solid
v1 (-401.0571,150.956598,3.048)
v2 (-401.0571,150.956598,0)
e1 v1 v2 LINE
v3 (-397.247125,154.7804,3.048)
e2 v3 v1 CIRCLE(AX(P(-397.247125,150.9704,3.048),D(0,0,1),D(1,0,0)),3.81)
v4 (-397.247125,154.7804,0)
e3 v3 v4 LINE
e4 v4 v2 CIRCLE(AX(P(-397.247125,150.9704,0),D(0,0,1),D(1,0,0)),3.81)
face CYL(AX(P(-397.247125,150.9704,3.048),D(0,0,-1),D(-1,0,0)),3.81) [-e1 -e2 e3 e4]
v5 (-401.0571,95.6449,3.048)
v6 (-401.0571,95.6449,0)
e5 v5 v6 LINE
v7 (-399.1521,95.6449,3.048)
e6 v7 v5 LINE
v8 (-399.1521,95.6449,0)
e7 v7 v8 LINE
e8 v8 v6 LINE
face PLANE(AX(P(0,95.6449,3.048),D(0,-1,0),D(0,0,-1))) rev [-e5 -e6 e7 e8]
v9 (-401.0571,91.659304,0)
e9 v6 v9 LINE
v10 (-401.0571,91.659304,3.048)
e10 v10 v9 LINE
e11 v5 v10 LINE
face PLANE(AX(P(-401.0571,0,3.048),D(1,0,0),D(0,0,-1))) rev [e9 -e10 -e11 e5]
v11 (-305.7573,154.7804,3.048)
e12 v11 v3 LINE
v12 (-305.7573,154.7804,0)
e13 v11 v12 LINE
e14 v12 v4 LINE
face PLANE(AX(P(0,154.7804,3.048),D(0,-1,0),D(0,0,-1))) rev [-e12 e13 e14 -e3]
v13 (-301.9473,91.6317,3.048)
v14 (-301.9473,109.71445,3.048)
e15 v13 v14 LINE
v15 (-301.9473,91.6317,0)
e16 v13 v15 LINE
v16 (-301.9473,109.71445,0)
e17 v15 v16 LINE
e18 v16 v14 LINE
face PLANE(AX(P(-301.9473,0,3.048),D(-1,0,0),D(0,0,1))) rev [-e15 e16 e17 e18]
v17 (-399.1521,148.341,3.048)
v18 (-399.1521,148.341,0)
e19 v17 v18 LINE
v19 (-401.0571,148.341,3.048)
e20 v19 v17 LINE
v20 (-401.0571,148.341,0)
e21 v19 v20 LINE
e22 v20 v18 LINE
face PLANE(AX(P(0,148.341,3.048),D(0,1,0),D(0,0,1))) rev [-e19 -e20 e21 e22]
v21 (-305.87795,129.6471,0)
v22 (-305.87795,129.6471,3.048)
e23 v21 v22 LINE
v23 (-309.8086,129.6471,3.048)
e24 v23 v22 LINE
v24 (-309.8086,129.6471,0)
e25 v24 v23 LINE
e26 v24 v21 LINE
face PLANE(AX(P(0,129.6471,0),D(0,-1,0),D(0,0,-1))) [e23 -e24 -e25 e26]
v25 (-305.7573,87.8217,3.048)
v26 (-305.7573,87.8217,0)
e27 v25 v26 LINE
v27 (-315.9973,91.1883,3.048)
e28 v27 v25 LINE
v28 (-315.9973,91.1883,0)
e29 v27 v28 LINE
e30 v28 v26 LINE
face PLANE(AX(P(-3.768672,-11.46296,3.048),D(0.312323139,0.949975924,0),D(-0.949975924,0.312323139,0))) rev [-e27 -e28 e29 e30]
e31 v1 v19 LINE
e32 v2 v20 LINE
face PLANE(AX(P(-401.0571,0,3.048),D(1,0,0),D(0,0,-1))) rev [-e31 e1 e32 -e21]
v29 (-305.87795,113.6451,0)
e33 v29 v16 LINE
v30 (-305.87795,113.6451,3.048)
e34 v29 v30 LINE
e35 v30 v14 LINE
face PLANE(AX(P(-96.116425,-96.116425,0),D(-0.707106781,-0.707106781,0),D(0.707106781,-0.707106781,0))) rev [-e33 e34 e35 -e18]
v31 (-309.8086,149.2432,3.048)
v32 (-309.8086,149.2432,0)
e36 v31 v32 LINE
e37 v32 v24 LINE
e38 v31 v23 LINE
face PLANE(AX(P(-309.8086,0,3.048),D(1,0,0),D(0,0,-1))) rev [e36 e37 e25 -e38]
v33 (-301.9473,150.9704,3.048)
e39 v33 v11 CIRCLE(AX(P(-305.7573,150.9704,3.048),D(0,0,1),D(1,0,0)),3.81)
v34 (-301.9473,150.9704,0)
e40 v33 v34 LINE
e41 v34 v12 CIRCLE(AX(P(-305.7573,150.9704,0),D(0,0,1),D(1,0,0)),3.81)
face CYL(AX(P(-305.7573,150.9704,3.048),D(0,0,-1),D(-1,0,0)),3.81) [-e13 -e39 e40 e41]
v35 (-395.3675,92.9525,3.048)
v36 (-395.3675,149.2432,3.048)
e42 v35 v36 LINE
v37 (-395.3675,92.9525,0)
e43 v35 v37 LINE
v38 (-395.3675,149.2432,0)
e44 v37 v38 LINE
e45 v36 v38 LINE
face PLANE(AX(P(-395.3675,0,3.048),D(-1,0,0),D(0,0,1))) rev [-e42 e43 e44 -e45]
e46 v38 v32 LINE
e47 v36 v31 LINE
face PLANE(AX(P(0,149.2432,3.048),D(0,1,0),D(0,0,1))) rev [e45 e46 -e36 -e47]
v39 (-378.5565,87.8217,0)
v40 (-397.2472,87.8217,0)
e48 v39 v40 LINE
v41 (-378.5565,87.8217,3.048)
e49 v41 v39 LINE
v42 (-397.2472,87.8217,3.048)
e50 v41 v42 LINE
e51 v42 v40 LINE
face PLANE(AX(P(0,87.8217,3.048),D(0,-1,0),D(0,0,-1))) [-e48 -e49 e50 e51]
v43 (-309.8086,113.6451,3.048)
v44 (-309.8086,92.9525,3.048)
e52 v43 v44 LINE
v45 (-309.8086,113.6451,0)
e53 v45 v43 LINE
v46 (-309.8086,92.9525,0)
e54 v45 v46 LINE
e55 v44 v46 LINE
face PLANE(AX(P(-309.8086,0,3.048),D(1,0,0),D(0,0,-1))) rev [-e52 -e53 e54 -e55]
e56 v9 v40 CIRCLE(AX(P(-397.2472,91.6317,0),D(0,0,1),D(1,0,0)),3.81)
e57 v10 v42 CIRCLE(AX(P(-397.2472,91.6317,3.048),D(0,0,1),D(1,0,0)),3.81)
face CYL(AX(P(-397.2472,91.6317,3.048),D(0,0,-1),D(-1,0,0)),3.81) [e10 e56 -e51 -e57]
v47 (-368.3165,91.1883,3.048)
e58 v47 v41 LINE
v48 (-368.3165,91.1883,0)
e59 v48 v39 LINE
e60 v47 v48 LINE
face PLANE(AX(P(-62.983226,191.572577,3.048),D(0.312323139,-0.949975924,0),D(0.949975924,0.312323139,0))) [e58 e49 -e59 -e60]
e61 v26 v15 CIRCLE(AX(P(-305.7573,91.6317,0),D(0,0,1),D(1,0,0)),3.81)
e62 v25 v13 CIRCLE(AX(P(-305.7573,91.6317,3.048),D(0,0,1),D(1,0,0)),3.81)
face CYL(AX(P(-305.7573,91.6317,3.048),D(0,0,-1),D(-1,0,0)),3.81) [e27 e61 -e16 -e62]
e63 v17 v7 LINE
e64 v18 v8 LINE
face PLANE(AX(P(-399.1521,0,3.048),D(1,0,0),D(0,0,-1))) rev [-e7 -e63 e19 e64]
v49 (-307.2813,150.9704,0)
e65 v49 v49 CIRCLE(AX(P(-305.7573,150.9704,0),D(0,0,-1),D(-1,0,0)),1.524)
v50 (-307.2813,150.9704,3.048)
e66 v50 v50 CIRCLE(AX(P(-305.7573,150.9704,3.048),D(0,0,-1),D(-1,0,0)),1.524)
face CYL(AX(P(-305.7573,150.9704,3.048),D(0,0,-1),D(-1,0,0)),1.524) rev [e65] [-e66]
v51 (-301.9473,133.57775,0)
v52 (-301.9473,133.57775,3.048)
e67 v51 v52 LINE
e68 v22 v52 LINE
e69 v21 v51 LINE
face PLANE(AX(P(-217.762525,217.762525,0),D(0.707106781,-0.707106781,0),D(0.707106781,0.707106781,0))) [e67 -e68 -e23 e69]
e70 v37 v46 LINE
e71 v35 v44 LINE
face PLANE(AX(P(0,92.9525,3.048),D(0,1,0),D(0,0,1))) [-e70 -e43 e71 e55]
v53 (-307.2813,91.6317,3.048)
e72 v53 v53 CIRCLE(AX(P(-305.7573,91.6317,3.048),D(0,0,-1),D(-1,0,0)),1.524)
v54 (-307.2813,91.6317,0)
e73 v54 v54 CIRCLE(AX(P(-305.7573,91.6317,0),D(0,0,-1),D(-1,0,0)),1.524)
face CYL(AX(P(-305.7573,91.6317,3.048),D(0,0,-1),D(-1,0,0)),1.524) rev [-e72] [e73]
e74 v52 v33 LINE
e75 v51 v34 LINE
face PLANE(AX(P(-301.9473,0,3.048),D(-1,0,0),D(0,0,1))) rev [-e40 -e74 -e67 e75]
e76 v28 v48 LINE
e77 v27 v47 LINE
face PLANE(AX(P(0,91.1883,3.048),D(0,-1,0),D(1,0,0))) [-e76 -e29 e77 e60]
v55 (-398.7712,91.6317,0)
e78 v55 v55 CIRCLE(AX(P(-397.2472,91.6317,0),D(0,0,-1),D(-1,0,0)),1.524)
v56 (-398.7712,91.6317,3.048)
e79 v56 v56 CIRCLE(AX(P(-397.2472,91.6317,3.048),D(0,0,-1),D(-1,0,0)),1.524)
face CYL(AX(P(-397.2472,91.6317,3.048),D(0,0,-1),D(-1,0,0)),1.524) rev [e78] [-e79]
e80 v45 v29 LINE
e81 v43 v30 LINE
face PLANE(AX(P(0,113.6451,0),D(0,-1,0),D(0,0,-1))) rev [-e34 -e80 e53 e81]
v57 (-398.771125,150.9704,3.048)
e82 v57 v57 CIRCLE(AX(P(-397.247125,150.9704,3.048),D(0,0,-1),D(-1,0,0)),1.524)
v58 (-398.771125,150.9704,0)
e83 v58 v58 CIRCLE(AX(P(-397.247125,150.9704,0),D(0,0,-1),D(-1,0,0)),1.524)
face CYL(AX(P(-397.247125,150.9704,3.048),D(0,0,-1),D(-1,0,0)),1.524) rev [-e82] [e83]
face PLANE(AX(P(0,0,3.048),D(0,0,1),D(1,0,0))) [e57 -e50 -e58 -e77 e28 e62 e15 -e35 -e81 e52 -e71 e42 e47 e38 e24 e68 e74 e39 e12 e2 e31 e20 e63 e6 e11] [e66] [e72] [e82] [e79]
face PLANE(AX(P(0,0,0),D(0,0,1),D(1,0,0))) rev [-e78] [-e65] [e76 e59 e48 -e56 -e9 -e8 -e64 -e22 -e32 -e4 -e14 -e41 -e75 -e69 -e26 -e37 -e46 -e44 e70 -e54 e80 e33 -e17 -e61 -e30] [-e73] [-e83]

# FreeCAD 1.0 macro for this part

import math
import FreeCAD as App
import Part
import Sketcher
Q = App.Units.Quantity

doc = App.newDocument("Part")
params = doc.addObject("Spreadsheet::Sheet", "Params")
for row, (alias, value) in enumerate([
    ("sketch1_radius", "0.15 in"),
    ("sketch1_diameter", "0.106 in"),
    ("sketch1_width", "0.075 in"),
    ("pad1_length", "0.12 in"),
    ("sketch2_diameter", "0.12 in"),
    ("sketch3_height", "0.03 in"),
    ("sketch3_height2", "0.08 in"),
], start=1):
    params.set(f"A{row}", alias)
    params.set(f"B{row}", "=" + value)
    params.setAlias(f"B{row}", alias)

body = doc.addObject("PartDesign::Body", "Body")

# Sketch on XY plane
sketch1 = body.newObject("Sketcher::SketchObject", "Sketch")
sketch1.AttachmentSupport = (doc.getObject("XY_Plane"), [""])
sketch1.MapMode = "FlatFace"
sketch1.addGeometry(Part.LineSegment(App.Vector(-401.0571, 150.956598, 0), App.Vector(-401.0571, 148.341, 0)), False)
sketch1.addGeometry(Part.LineSegment(App.Vector(-401.0571, 148.341, 0), App.Vector(-399.1521, 148.341, 0)), False)
sketch1.addGeometry(Part.LineSegment(App.Vector(-399.1521, 148.341, 0), App.Vector(-399.1521, 95.6449, 0)), False)
sketch1.addGeometry(Part.LineSegment(App.Vector(-399.1521, 95.6449, 0), App.Vector(-401.0571, 95.6449, 0)), False)
sketch1.addGeometry(Part.LineSegment(App.Vector(-401.0571, 95.6449, 0), App.Vector(-401.0571, 91.659304, 0)), False)
sketch1.addGeometry(Part.ArcOfCircle(Part.Circle(App.Vector(-397.2472, 91.6317, 0), App.Vector(0, 0, 1), 3.81), math.radians(179.584878), math.radians(270)), False)
sketch1.addGeometry(Part.LineSegment(App.Vector(-397.2472, 87.8217, 0), App.Vector(-378.5565, 87.8217, 0)), False)
sketch1.addGeometry(Part.LineSegment(App.Vector(-378.5565, 87.8217, 0), App.Vector(-368.3165, 91.1883, 0)), False)
sketch1.addGeometry(Part.LineSegment(App.Vector(-368.3165, 91.1883, 0), App.Vector(-315.9973, 91.1883, 0)), False)
sketch1.addGeometry(Part.LineSegment(App.Vector(-315.9973, 91.1883, 0), App.Vector(-305.7573, 87.8217, 0)), False)
sketch1.addGeometry(Part.ArcOfCircle(Part.Circle(App.Vector(-305.7573, 91.6317, 0), App.Vector(0, 0, 1), 3.81), math.radians(-90), math.radians(0)), False)
sketch1.addGeometry(Part.LineSegment(App.Vector(-301.9473, 91.6317, 0), App.Vector(-301.9473, 111.74645, 0)), False)
sketch1.addGeometry(Part.LineSegment(App.Vector(-301.9473, 111.74645, 0), App.Vector(-305.87795, 115.6771, 0)), False)
sketch1.addGeometry(Part.LineSegment(App.Vector(-305.87795, 115.6771, 0), App.Vector(-309.8086, 115.6771, 0)), False)
sketch1.addGeometry(Part.LineSegment(App.Vector(-309.8086, 115.6771, 0), App.Vector(-309.8086, 92.9525, 0)), False)
sketch1.addGeometry(Part.LineSegment(App.Vector(-309.8086, 92.9525, 0), App.Vector(-395.3675, 92.9525, 0)), False)
sketch1.addGeometry(Part.LineSegment(App.Vector(-395.3675, 92.9525, 0), App.Vector(-395.3675, 149.2432, 0)), False)
sketch1.addGeometry(Part.LineSegment(App.Vector(-395.3675, 149.2432, 0), App.Vector(-309.8086, 149.2432, 0)), False)
sketch1.addGeometry(Part.LineSegment(App.Vector(-309.8086, 149.2432, 0), App.Vector(-309.8086, 128.8851, 0)), False)
sketch1.addGeometry(Part.LineSegment(App.Vector(-309.8086, 128.8851, 0), App.Vector(-305.87795, 128.8851, 0)), False)
sketch1.addGeometry(Part.LineSegment(App.Vector(-305.87795, 128.8851, 0), App.Vector(-301.9473, 132.81575, 0)), False)
sketch1.addGeometry(Part.LineSegment(App.Vector(-301.9473, 132.81575, 0), App.Vector(-301.9473, 150.9704, 0)), False)
sketch1.addGeometry(Part.ArcOfCircle(Part.Circle(App.Vector(-305.7573, 150.9704, 0), App.Vector(0, 0, 1), 3.81), math.radians(0), math.radians(90)), False)
sketch1.addGeometry(Part.LineSegment(App.Vector(-305.7573, 154.7804, 0), App.Vector(-397.247125, 154.7804, 0)), False)
sketch1.addGeometry(Part.ArcOfCircle(Part.Circle(App.Vector(-397.247125, 150.9704, 0), App.Vector(0, 0, 1), 3.81), math.radians(90), math.radians(180.207561)), False)
sketch1.addGeometry(Part.Circle(App.Vector(-397.2472, 91.6317, 0), App.Vector(0, 0, 1), 1.3462), False)
sketch1.addGeometry(Part.Circle(App.Vector(-305.7573, 91.6317, 0), App.Vector(0, 0, 1), 1.3462), False)
sketch1.addGeometry(Part.Circle(App.Vector(-397.247125, 150.9704, 0), App.Vector(0, 0, 1), 1.3462), False)
sketch1.addGeometry(Part.Circle(App.Vector(-305.7573, 150.9704, 0), App.Vector(0, 0, 1), 1.3462), False)
sketch1.addConstraint(Sketcher.Constraint("Coincident", 0, 2, 1, 1))
sketch1.addConstraint(Sketcher.Constraint("Coincident", 1, 2, 2, 1))
sketch1.addConstraint(Sketcher.Constraint("Coincident", 2, 2, 3, 1))
sketch1.addConstraint(Sketcher.Constraint("Coincident", 3, 2, 4, 1))
sketch1.addConstraint(Sketcher.Constraint("Coincident", 4, 2, 5, 1))
sketch1.addConstraint(Sketcher.Constraint("Tangent", 5, 2, 6, 1))
sketch1.addConstraint(Sketcher.Constraint("Coincident", 6, 2, 7, 1))
sketch1.addConstraint(Sketcher.Constraint("Coincident", 7, 2, 8, 1))
sketch1.addConstraint(Sketcher.Constraint("Coincident", 8, 2, 9, 1))
sketch1.addConstraint(Sketcher.Constraint("Coincident", 9, 2, 10, 1))
sketch1.addConstraint(Sketcher.Constraint("Tangent", 10, 2, 11, 1))
sketch1.addConstraint(Sketcher.Constraint("Coincident", 11, 2, 12, 1))
sketch1.addConstraint(Sketcher.Constraint("Coincident", 12, 2, 13, 1))
sketch1.addConstraint(Sketcher.Constraint("Coincident", 13, 2, 14, 1))
sketch1.addConstraint(Sketcher.Constraint("Coincident", 14, 2, 15, 1))
sketch1.addConstraint(Sketcher.Constraint("Coincident", 15, 2, 16, 1))
sketch1.addConstraint(Sketcher.Constraint("Coincident", 16, 2, 17, 1))
sketch1.addConstraint(Sketcher.Constraint("Coincident", 17, 2, 18, 1))
sketch1.addConstraint(Sketcher.Constraint("Coincident", 18, 2, 19, 1))
sketch1.addConstraint(Sketcher.Constraint("Coincident", 19, 2, 20, 1))
sketch1.addConstraint(Sketcher.Constraint("Coincident", 20, 2, 21, 1))
sketch1.addConstraint(Sketcher.Constraint("Tangent", 21, 2, 22, 1))
sketch1.addConstraint(Sketcher.Constraint("Tangent", 22, 2, 23, 1))
sketch1.addConstraint(Sketcher.Constraint("Tangent", 23, 2, 24, 1))
sketch1.addConstraint(Sketcher.Constraint("Coincident", 24, 2, 0, 1))
sketch1.addConstraint(Sketcher.Constraint("Vertical", 0))
sketch1.addConstraint(Sketcher.Constraint("Horizontal", 1))
sketch1.addConstraint(Sketcher.Constraint("Vertical", 2))
sketch1.addConstraint(Sketcher.Constraint("Horizontal", 3))
sketch1.addConstraint(Sketcher.Constraint("Vertical", 4))
sketch1.addConstraint(Sketcher.Constraint("Horizontal", 6))
sketch1.addConstraint(Sketcher.Constraint("Horizontal", 8))
sketch1.addConstraint(Sketcher.Constraint("Vertical", 11))
sketch1.addConstraint(Sketcher.Constraint("Horizontal", 13))
sketch1.addConstraint(Sketcher.Constraint("Vertical", 14))
sketch1.addConstraint(Sketcher.Constraint("Horizontal", 15))
sketch1.addConstraint(Sketcher.Constraint("Vertical", 16))
sketch1.addConstraint(Sketcher.Constraint("Horizontal", 17))
sketch1.addConstraint(Sketcher.Constraint("Vertical", 18))
sketch1.addConstraint(Sketcher.Constraint("Horizontal", 19))
sketch1.addConstraint(Sketcher.Constraint("Vertical", 21))
sketch1.addConstraint(Sketcher.Constraint("Horizontal", 23))
sketch1.addConstraint(Sketcher.Constraint("Coincident", 25, 3, 5, 3))
sketch1.addConstraint(Sketcher.Constraint("Coincident", 26, 3, 10, 3))
sketch1.addConstraint(Sketcher.Constraint("Coincident", 27, 3, 24, 3))
sketch1.addConstraint(Sketcher.Constraint("Coincident", 28, 3, 22, 3))
sketch1.addConstraint(Sketcher.Constraint("Equal", 5, 10))
sketch1.addConstraint(Sketcher.Constraint("Equal", 10, 22))
sketch1.addConstraint(Sketcher.Constraint("Equal", 22, 24))
sketch1.addConstraint(Sketcher.Constraint("Equal", 25, 26))
sketch1.addConstraint(Sketcher.Constraint("Equal", 26, 27))
sketch1.addConstraint(Sketcher.Constraint("Equal", 27, 28))
sketch1.addConstraint(Sketcher.Constraint("Perpendicular", 12, 20))
sketch1.addConstraint(Sketcher.Constraint("Horizontal", 5, 3, 10, 3))
sketch1.addConstraint(Sketcher.Constraint("Vertical", 10, 3, 22, 3))
sketch1.addConstraint(Sketcher.Constraint("Vertical", 0, 2, 3, 2))
sketch1.addConstraint(Sketcher.Constraint("Vertical", 28, 3, 9, 2))
sketch1.addConstraint(Sketcher.Constraint("Vertical", 14, 2, 17, 2))
sketch1.addConstraint(Sketcher.Constraint("Vertical", 12, 2, 19, 2))
sketch1.addConstraint(Sketcher.Constraint("Equal", 7, 9))
sketch1.addConstraint(Sketcher.Constraint("Equal", 12, 20))
sketch1.addConstraint(Sketcher.Constraint("Radius", 5, Q("0.15 in")))
sketch1.addConstraint(Sketcher.Constraint("Diameter", 25, Q("0.106 in")))
sketch1.addConstraint(Sketcher.Constraint("DistanceX", 1, 1, 1, 2, Q("0.075 in")))
sketch1.addConstraint(Sketcher.Constraint("DistanceY", 13, 2, 18, 2, Q("0.52 in")))
sketch1.addConstraint(Sketcher.Constraint("DistanceY", 18, 2, 18, 1, Q("0.8015 in")))
sketch1.addConstraint(Sketcher.Constraint("DistanceY", 5, 3, 2, 2, Q("0.158 in")))
sketch1.addConstraint(Sketcher.Constraint("DistanceX", 2, 2, 7, 2, Q("1.214 in")))
sketch1.addConstraint(Sketcher.Constraint("DistanceY", 10, 3, 14, 2, Q("0.052 in")))
sketch1.addConstraint(Sketcher.Constraint("DistanceX", 2, 2, 15, 2, Q("0.149 in")))
sketch1.addConstraint(Sketcher.Constraint("DistanceY", 16, 2, 24, 3, Q("0.068 in")))
sketch1.addConstraint(Sketcher.Constraint("DistanceX", 6, 1, 6, 2, 18.6907))
sketch1.addConstraint(Sketcher.Constraint("DistanceX", 8, 1, 8, 2, 52.3192))
sketch1.addConstraint(Sketcher.Constraint("DistanceX", 15, 2, 15, 1, 85.5589))
sketch1.addConstraint(Sketcher.Constraint("DistanceY", 2, 2, 2, 1, 52.6961))
sketch1.addConstraint(Sketcher.Constraint("DistanceY", 14, 2, 14, 1, 22.7246))
sketch1.addConstraint(Sketcher.Constraint("DistanceX", 13, 2, 11, 2, Q("0.3095 in")))
sketch1.addConstraint(Sketcher.Constraint("DistanceX", 13, 2, 13, 1, 3.93065))
sketch1.addConstraint(Sketcher.Constraint("DistanceX", 5, 3, -1, 1, 397.2472))
sketch1.addConstraint(Sketcher.Constraint("DistanceY", -1, 1, 5, 3, 91.6317))
sketch1.addConstraint(Sketcher.Constraint("DistanceY", -1, 1, 7, 2, 91.1883))
sketch1.addConstraint(Sketcher.Constraint("DistanceX", 23, 2, 23, 1, 91.489825))
sketch1.setExpression("Constraints[61]", "Params.sketch1_radius")
sketch1.setExpression("Constraints[62]", "Params.sketch1_diameter")
sketch1.setExpression("Constraints[63]", "Params.sketch1_width")
pad1 = body.newObject("PartDesign::Pad", "Pad")
pad1.Profile = sketch1
pad1.setExpression("Length", "Params.pad1_length")

# Sketch on XY plane
sketch2 = body.newObject("Sketcher::SketchObject", "Sketch001")
sketch2.AttachmentSupport = (doc.getObject("XY_Plane"), [""])
sketch2.MapMode = "FlatFace"
sketch2.addGeometry(Part.Circle(App.Vector(-305.8, 151, 0), App.Vector(0, 0, 1), 1.5), False)
sketch2.addGeometry(Part.Circle(App.Vector(-305.8, 91.6, 0), App.Vector(0, 0, 1), 1.5), False)
sketch2.addGeometry(Part.Circle(App.Vector(-397.2, 91.6, 0), App.Vector(0, 0, 1), 1.5), False)
sketch2.addGeometry(Part.Circle(App.Vector(-397.2, 151, 0), App.Vector(0, 0, 1), 1.5), False)
sketch2.addConstraint(Sketcher.Constraint("Equal", 0, 1))
sketch2.addConstraint(Sketcher.Constraint("Equal", 1, 2))
sketch2.addConstraint(Sketcher.Constraint("Equal", 2, 3))
sketch2.addConstraint(Sketcher.Constraint("Horizontal", 1, 3, 2, 3))
sketch2.addConstraint(Sketcher.Constraint("Horizontal", 0, 3, 3, 3))
sketch2.addConstraint(Sketcher.Constraint("Vertical", 0, 3, 1, 3))
sketch2.addConstraint(Sketcher.Constraint("Diameter", 0, Q("0.12 in")))
sketch2.addConstraint(Sketcher.Constraint("DistanceX", 0, 3, -1, 1, 305.7573))
sketch2.addConstraint(Sketcher.Constraint("DistanceY", -1, 1, 0, 3, 150.9704))
sketch2.addConstraint(Sketcher.Constraint("DistanceY", -1, 1, 1, 3, 91.6317))
sketch2.addConstraint(Sketcher.Constraint("DistanceX", 2, 3, -1, 1, 397.2472))
sketch2.addConstraint(Sketcher.Constraint("DistanceX", 3, 3, -1, 1, 397.247125))
sketch2.setExpression("Constraints[6]", "Params.sketch2_diameter")
pocket1 = body.newObject("PartDesign::Pocket", "Pocket")
pocket1.Profile = sketch2
pocket1.Type = "ThroughAll"
pocket1.Reversed = True

# Sketch on XY plane
sketch3 = body.newObject("Sketcher::SketchObject", "Sketch002")
sketch3.AttachmentSupport = (doc.getObject("XY_Plane"), [""])
sketch3.MapMode = "FlatFace"
sketch3.AttachmentOffset = App.Placement(App.Vector(0, 0, 0.12 * 25.4), App.Rotation())
sketch3.addGeometry(Part.LineSegment(App.Vector(-309.8, 129.6, 0), App.Vector(-309.8, 128.9, 0)), False)
sketch3.addGeometry(Part.LineSegment(App.Vector(-309.8, 128.9, 0), App.Vector(-305.9, 128.9, 0)), False)
sketch3.addGeometry(Part.LineSegment(App.Vector(-305.9, 128.9, 0), App.Vector(-301.9, 132.8, 0)), False)
sketch3.addGeometry(Part.LineSegment(App.Vector(-301.9, 132.8, 0), App.Vector(-301.9, 133.6, 0)), False)
sketch3.addGeometry(Part.LineSegment(App.Vector(-301.9, 133.6, 0), App.Vector(-305.9, 129.6, 0)), False)
sketch3.addGeometry(Part.LineSegment(App.Vector(-305.9, 129.6, 0), App.Vector(-309.8, 129.6, 0)), False)
sketch3.addGeometry(Part.LineSegment(App.Vector(-305.9, 115.7, 0), App.Vector(-309.8, 115.7, 0)), False)
sketch3.addGeometry(Part.LineSegment(App.Vector(-309.8, 115.7, 0), App.Vector(-309.8, 113.6, 0)), False)
sketch3.addGeometry(Part.LineSegment(App.Vector(-309.8, 113.6, 0), App.Vector(-305.9, 113.6, 0)), False)
sketch3.addGeometry(Part.LineSegment(App.Vector(-305.9, 113.6, 0), App.Vector(-301.9, 109.7, 0)), False)
sketch3.addGeometry(Part.LineSegment(App.Vector(-301.9, 109.7, 0), App.Vector(-301.9, 111.7, 0)), False)
sketch3.addGeometry(Part.LineSegment(App.Vector(-301.9, 111.7, 0), App.Vector(-305.9, 115.7, 0)), False)
sketch3.addConstraint(Sketcher.Constraint("Coincident", 0, 2, 1, 1))
sketch3.addConstraint(Sketcher.Constraint("Coincident", 1, 2, 2, 1))
sketch3.addConstraint(Sketcher.Constraint("Coincident", 2, 2, 3, 1))
sketch3.addConstraint(Sketcher.Constraint("Coincident", 3, 2, 4, 1))
sketch3.addConstraint(Sketcher.Constraint("Coincident", 4, 2, 5, 1))
sketch3.addConstraint(Sketcher.Constraint("Coincident", 5, 2, 0, 1))
sketch3.addConstraint(Sketcher.Constraint("Coincident", 6, 2, 7, 1))
sketch3.addConstraint(Sketcher.Constraint("Coincident", 7, 2, 8, 1))
sketch3.addConstraint(Sketcher.Constraint("Coincident", 8, 2, 9, 1))
sketch3.addConstraint(Sketcher.Constraint("Coincident", 9, 2, 10, 1))
sketch3.addConstraint(Sketcher.Constraint("Coincident", 10, 2, 11, 1))
sketch3.addConstraint(Sketcher.Constraint("Coincident", 11, 2, 6, 1))
sketch3.addConstraint(Sketcher.Constraint("Vertical", 0))
sketch3.addConstraint(Sketcher.Constraint("Horizontal", 1))
sketch3.addConstraint(Sketcher.Constraint("Vertical", 3))
sketch3.addConstraint(Sketcher.Constraint("Horizontal", 5))
sketch3.addConstraint(Sketcher.Constraint("Horizontal", 6))
sketch3.addConstraint(Sketcher.Constraint("Vertical", 7))
sketch3.addConstraint(Sketcher.Constraint("Horizontal", 8))
sketch3.addConstraint(Sketcher.Constraint("Vertical", 10))
sketch3.addConstraint(Sketcher.Constraint("Parallel", 2, 4))
sketch3.addConstraint(Sketcher.Constraint("Perpendicular", 4, 9))
sketch3.addConstraint(Sketcher.Constraint("Parallel", 9, 11))
sketch3.addConstraint(Sketcher.Constraint("Vertical", 1, 2, 4, 2))
sketch3.addConstraint(Sketcher.Constraint("Vertical", 5, 2, 6, 2))
sketch3.addConstraint(Sketcher.Constraint("Vertical", 4, 2, 8, 2))
sketch3.addConstraint(Sketcher.Constraint("Vertical", 3, 2, 9, 2))
sketch3.addConstraint(Sketcher.Constraint("Vertical", 8, 2, 11, 2))
sketch3.addConstraint(Sketcher.Constraint("Equal", 4, 9))
sketch3.addConstraint(Sketcher.Constraint("DistanceY", 0, 2, 0, 1, Q("0.03 in")))
sketch3.addConstraint(Sketcher.Constraint("DistanceY", 7, 2, 7, 1, Q("0.08 in")))
sketch3.addConstraint(Sketcher.Constraint("DistanceY", 7, 2, 0, 2, Q("0.6 in")))
sketch3.addConstraint(Sketcher.Constraint("DistanceX", 0, 2, 2, 2, Q("0.3095 in")))
sketch3.addConstraint(Sketcher.Constraint("DistanceX", 1, 1, 1, 2, 3.93065))
sketch3.addConstraint(Sketcher.Constraint("DistanceX", 0, 2, -1, 1, 309.8086))
sketch3.addConstraint(Sketcher.Constraint("DistanceY", -1, 1, 0, 2, 128.8851))
sketch3.setExpression("Constraints[29]", "Params.sketch3_height")
sketch3.setExpression("Constraints[30]", "Params.sketch3_height2")
pocket2 = body.newObject("PartDesign::Pocket", "Pocket001")
pocket2.Profile = sketch3
pocket2.Type = "ThroughAll"

doc.recompute()
